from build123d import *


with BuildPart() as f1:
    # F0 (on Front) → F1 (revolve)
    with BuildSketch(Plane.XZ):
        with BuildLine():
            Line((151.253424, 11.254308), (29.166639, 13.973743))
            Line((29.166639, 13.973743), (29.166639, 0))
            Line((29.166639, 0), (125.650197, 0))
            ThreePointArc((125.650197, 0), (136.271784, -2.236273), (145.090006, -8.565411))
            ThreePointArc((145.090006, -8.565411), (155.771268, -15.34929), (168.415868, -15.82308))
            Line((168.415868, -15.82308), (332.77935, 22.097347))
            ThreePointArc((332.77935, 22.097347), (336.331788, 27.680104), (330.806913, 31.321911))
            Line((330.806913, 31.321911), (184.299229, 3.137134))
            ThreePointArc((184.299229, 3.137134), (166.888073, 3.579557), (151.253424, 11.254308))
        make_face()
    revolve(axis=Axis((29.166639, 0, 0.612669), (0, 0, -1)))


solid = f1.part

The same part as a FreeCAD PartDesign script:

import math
import FreeCAD as App
import Part
import Sketcher

V = App.Vector
Q = App.Units.Quantity

doc = App.newDocument("Part")
body = doc.addObject("PartDesign::Body", "Body")

# Sketch on XZ plane
sketch1 = body.newObject("Sketcher::SketchObject", "Sketch")
sketch1.AttachmentSupport = (doc.getObject("XZ_Plane"), [""])
sketch1.MapMode = "FlatFace"
sketch1.addGeometry([
    Part.LineSegment(V(151.3, 11.3, 0), V(29.2, 14, 0)),  # 0
    Part.LineSegment(V(29.2, 14, 0), V(29.2, 0, 0)),  # 1
    Part.LineSegment(V(29.2, 0, 0), V(125.7, 0, 0)),  # 2
    Part.ArcOfCircle(Part.Circle(V(125.7, -26.3, 0), V(0, 0, 1), 26.3), math.radians(42), math.radians(90)),  # 3
    Part.ArcOfCircle(Part.Circle(V(163, 7.8, 0), V(0, 0, 1), 24.2), math.radians(-138), math.radians(-77)),  # 4
    Part.LineSegment(V(168.4, -15.8, 0), V(332.8, 22.1, 0)),  # 5
    Part.ArcOfCircle(Part.Circle(V(331.7, 26.7, 0), V(0, 0, 1), 4.7), math.radians(-77), math.radians(101)),  # 6
    Part.LineSegment(V(330.8, 31.3, 0), V(184.3, 3.1, 0)),  # 7
    Part.ArcOfCircle(Part.Circle(V(176.6, 43.1, 0), V(0, 0, 1), 40.7), math.radians(-128), math.radians(-79)),  # 8
], False)
sketch1.addGeometry(Part.LineSegment(V(29.2, 43.1, 0), V(29.2, -26.3, 0)), True)  # axis
sketch1.addConstraint([
    Sketcher.Constraint("Coincident", 0, 2, 1, 1),
    Sketcher.Constraint("Coincident", 1, 2, 2, 1),
    Sketcher.Constraint("Tangent", 2, 2, 3, 2),
    Sketcher.Constraint("Tangent", 3, 1, 4, 1),
    Sketcher.Constraint("Tangent", 4, 2, 5, 1),
    Sketcher.Constraint("Tangent", 5, 2, 6, 1),
    Sketcher.Constraint("Coincident", 6, 2, 7, 1),
    Sketcher.Constraint("Tangent", 7, 2, 8, 2),
    Sketcher.Constraint("Coincident", 8, 1, 0, 1),
    Sketcher.Constraint("Vertical", 1),
    Sketcher.Constraint("Horizontal", 2),
    Sketcher.Constraint("Vertical", 9),
    Sketcher.Constraint("PointOnObject", 1, 2, -1),
    Sketcher.Constraint("Horizontal", 8, 3, 9, 1),
    Sketcher.Constraint("Horizontal", 3, 3, 9, 2),
    Sketcher.Constraint("Vertical", 1, 2, 9, 1),
    Sketcher.Constraint("Radius", 3, Q("26.342719 mm")),
    Sketcher.Constraint("Radius", 8, Q("40.731989 mm")),
    Sketcher.Constraint("Radius", 4, Q("24.228044 mm")),
    Sketcher.Constraint("Radius", 6, Q("4.717153 mm")),
    Sketcher.Constraint("Distance", 5, Q("168.681099 mm")),
    Sketcher.Constraint("DistanceX", 2, 1, 2, 2, Q("96.483558 mm")),
    Sketcher.Constraint("DistanceY", 9, 2, 9, 1, Q("69.47841 mm")),
    Sketcher.Constraint("DistanceX", 3, 1, 8, 3, Q("31.5144 mm")),
    Sketcher.Constraint("Distance", 0, Q("122.117068 mm")),
    Sketcher.Constraint("DistanceY", 1, 2, 1, 1, Q("13.973743 mm")),
    Sketcher.Constraint("DistanceX", -1, 1, 6, 3, Q("331.718909 mm")),
    Sketcher.Constraint("DistanceY", -1, 1, 6, 3, Q("26.693758 mm")),
    Sketcher.Constraint("DistanceX", -1, 1, 0, 2, Q("29.166639 mm")),
    Sketcher.Constraint("DistanceY", -1, 1, 6, 2, Q("31.321911 mm")),
])
revolution = body.newObject("PartDesign::Revolution", "Revolution")
revolution.Profile = sketch1
revolution.ReferenceAxis = (sketch1, ["Axis0"])
revolution.Angle = 360

doc.recompute()
